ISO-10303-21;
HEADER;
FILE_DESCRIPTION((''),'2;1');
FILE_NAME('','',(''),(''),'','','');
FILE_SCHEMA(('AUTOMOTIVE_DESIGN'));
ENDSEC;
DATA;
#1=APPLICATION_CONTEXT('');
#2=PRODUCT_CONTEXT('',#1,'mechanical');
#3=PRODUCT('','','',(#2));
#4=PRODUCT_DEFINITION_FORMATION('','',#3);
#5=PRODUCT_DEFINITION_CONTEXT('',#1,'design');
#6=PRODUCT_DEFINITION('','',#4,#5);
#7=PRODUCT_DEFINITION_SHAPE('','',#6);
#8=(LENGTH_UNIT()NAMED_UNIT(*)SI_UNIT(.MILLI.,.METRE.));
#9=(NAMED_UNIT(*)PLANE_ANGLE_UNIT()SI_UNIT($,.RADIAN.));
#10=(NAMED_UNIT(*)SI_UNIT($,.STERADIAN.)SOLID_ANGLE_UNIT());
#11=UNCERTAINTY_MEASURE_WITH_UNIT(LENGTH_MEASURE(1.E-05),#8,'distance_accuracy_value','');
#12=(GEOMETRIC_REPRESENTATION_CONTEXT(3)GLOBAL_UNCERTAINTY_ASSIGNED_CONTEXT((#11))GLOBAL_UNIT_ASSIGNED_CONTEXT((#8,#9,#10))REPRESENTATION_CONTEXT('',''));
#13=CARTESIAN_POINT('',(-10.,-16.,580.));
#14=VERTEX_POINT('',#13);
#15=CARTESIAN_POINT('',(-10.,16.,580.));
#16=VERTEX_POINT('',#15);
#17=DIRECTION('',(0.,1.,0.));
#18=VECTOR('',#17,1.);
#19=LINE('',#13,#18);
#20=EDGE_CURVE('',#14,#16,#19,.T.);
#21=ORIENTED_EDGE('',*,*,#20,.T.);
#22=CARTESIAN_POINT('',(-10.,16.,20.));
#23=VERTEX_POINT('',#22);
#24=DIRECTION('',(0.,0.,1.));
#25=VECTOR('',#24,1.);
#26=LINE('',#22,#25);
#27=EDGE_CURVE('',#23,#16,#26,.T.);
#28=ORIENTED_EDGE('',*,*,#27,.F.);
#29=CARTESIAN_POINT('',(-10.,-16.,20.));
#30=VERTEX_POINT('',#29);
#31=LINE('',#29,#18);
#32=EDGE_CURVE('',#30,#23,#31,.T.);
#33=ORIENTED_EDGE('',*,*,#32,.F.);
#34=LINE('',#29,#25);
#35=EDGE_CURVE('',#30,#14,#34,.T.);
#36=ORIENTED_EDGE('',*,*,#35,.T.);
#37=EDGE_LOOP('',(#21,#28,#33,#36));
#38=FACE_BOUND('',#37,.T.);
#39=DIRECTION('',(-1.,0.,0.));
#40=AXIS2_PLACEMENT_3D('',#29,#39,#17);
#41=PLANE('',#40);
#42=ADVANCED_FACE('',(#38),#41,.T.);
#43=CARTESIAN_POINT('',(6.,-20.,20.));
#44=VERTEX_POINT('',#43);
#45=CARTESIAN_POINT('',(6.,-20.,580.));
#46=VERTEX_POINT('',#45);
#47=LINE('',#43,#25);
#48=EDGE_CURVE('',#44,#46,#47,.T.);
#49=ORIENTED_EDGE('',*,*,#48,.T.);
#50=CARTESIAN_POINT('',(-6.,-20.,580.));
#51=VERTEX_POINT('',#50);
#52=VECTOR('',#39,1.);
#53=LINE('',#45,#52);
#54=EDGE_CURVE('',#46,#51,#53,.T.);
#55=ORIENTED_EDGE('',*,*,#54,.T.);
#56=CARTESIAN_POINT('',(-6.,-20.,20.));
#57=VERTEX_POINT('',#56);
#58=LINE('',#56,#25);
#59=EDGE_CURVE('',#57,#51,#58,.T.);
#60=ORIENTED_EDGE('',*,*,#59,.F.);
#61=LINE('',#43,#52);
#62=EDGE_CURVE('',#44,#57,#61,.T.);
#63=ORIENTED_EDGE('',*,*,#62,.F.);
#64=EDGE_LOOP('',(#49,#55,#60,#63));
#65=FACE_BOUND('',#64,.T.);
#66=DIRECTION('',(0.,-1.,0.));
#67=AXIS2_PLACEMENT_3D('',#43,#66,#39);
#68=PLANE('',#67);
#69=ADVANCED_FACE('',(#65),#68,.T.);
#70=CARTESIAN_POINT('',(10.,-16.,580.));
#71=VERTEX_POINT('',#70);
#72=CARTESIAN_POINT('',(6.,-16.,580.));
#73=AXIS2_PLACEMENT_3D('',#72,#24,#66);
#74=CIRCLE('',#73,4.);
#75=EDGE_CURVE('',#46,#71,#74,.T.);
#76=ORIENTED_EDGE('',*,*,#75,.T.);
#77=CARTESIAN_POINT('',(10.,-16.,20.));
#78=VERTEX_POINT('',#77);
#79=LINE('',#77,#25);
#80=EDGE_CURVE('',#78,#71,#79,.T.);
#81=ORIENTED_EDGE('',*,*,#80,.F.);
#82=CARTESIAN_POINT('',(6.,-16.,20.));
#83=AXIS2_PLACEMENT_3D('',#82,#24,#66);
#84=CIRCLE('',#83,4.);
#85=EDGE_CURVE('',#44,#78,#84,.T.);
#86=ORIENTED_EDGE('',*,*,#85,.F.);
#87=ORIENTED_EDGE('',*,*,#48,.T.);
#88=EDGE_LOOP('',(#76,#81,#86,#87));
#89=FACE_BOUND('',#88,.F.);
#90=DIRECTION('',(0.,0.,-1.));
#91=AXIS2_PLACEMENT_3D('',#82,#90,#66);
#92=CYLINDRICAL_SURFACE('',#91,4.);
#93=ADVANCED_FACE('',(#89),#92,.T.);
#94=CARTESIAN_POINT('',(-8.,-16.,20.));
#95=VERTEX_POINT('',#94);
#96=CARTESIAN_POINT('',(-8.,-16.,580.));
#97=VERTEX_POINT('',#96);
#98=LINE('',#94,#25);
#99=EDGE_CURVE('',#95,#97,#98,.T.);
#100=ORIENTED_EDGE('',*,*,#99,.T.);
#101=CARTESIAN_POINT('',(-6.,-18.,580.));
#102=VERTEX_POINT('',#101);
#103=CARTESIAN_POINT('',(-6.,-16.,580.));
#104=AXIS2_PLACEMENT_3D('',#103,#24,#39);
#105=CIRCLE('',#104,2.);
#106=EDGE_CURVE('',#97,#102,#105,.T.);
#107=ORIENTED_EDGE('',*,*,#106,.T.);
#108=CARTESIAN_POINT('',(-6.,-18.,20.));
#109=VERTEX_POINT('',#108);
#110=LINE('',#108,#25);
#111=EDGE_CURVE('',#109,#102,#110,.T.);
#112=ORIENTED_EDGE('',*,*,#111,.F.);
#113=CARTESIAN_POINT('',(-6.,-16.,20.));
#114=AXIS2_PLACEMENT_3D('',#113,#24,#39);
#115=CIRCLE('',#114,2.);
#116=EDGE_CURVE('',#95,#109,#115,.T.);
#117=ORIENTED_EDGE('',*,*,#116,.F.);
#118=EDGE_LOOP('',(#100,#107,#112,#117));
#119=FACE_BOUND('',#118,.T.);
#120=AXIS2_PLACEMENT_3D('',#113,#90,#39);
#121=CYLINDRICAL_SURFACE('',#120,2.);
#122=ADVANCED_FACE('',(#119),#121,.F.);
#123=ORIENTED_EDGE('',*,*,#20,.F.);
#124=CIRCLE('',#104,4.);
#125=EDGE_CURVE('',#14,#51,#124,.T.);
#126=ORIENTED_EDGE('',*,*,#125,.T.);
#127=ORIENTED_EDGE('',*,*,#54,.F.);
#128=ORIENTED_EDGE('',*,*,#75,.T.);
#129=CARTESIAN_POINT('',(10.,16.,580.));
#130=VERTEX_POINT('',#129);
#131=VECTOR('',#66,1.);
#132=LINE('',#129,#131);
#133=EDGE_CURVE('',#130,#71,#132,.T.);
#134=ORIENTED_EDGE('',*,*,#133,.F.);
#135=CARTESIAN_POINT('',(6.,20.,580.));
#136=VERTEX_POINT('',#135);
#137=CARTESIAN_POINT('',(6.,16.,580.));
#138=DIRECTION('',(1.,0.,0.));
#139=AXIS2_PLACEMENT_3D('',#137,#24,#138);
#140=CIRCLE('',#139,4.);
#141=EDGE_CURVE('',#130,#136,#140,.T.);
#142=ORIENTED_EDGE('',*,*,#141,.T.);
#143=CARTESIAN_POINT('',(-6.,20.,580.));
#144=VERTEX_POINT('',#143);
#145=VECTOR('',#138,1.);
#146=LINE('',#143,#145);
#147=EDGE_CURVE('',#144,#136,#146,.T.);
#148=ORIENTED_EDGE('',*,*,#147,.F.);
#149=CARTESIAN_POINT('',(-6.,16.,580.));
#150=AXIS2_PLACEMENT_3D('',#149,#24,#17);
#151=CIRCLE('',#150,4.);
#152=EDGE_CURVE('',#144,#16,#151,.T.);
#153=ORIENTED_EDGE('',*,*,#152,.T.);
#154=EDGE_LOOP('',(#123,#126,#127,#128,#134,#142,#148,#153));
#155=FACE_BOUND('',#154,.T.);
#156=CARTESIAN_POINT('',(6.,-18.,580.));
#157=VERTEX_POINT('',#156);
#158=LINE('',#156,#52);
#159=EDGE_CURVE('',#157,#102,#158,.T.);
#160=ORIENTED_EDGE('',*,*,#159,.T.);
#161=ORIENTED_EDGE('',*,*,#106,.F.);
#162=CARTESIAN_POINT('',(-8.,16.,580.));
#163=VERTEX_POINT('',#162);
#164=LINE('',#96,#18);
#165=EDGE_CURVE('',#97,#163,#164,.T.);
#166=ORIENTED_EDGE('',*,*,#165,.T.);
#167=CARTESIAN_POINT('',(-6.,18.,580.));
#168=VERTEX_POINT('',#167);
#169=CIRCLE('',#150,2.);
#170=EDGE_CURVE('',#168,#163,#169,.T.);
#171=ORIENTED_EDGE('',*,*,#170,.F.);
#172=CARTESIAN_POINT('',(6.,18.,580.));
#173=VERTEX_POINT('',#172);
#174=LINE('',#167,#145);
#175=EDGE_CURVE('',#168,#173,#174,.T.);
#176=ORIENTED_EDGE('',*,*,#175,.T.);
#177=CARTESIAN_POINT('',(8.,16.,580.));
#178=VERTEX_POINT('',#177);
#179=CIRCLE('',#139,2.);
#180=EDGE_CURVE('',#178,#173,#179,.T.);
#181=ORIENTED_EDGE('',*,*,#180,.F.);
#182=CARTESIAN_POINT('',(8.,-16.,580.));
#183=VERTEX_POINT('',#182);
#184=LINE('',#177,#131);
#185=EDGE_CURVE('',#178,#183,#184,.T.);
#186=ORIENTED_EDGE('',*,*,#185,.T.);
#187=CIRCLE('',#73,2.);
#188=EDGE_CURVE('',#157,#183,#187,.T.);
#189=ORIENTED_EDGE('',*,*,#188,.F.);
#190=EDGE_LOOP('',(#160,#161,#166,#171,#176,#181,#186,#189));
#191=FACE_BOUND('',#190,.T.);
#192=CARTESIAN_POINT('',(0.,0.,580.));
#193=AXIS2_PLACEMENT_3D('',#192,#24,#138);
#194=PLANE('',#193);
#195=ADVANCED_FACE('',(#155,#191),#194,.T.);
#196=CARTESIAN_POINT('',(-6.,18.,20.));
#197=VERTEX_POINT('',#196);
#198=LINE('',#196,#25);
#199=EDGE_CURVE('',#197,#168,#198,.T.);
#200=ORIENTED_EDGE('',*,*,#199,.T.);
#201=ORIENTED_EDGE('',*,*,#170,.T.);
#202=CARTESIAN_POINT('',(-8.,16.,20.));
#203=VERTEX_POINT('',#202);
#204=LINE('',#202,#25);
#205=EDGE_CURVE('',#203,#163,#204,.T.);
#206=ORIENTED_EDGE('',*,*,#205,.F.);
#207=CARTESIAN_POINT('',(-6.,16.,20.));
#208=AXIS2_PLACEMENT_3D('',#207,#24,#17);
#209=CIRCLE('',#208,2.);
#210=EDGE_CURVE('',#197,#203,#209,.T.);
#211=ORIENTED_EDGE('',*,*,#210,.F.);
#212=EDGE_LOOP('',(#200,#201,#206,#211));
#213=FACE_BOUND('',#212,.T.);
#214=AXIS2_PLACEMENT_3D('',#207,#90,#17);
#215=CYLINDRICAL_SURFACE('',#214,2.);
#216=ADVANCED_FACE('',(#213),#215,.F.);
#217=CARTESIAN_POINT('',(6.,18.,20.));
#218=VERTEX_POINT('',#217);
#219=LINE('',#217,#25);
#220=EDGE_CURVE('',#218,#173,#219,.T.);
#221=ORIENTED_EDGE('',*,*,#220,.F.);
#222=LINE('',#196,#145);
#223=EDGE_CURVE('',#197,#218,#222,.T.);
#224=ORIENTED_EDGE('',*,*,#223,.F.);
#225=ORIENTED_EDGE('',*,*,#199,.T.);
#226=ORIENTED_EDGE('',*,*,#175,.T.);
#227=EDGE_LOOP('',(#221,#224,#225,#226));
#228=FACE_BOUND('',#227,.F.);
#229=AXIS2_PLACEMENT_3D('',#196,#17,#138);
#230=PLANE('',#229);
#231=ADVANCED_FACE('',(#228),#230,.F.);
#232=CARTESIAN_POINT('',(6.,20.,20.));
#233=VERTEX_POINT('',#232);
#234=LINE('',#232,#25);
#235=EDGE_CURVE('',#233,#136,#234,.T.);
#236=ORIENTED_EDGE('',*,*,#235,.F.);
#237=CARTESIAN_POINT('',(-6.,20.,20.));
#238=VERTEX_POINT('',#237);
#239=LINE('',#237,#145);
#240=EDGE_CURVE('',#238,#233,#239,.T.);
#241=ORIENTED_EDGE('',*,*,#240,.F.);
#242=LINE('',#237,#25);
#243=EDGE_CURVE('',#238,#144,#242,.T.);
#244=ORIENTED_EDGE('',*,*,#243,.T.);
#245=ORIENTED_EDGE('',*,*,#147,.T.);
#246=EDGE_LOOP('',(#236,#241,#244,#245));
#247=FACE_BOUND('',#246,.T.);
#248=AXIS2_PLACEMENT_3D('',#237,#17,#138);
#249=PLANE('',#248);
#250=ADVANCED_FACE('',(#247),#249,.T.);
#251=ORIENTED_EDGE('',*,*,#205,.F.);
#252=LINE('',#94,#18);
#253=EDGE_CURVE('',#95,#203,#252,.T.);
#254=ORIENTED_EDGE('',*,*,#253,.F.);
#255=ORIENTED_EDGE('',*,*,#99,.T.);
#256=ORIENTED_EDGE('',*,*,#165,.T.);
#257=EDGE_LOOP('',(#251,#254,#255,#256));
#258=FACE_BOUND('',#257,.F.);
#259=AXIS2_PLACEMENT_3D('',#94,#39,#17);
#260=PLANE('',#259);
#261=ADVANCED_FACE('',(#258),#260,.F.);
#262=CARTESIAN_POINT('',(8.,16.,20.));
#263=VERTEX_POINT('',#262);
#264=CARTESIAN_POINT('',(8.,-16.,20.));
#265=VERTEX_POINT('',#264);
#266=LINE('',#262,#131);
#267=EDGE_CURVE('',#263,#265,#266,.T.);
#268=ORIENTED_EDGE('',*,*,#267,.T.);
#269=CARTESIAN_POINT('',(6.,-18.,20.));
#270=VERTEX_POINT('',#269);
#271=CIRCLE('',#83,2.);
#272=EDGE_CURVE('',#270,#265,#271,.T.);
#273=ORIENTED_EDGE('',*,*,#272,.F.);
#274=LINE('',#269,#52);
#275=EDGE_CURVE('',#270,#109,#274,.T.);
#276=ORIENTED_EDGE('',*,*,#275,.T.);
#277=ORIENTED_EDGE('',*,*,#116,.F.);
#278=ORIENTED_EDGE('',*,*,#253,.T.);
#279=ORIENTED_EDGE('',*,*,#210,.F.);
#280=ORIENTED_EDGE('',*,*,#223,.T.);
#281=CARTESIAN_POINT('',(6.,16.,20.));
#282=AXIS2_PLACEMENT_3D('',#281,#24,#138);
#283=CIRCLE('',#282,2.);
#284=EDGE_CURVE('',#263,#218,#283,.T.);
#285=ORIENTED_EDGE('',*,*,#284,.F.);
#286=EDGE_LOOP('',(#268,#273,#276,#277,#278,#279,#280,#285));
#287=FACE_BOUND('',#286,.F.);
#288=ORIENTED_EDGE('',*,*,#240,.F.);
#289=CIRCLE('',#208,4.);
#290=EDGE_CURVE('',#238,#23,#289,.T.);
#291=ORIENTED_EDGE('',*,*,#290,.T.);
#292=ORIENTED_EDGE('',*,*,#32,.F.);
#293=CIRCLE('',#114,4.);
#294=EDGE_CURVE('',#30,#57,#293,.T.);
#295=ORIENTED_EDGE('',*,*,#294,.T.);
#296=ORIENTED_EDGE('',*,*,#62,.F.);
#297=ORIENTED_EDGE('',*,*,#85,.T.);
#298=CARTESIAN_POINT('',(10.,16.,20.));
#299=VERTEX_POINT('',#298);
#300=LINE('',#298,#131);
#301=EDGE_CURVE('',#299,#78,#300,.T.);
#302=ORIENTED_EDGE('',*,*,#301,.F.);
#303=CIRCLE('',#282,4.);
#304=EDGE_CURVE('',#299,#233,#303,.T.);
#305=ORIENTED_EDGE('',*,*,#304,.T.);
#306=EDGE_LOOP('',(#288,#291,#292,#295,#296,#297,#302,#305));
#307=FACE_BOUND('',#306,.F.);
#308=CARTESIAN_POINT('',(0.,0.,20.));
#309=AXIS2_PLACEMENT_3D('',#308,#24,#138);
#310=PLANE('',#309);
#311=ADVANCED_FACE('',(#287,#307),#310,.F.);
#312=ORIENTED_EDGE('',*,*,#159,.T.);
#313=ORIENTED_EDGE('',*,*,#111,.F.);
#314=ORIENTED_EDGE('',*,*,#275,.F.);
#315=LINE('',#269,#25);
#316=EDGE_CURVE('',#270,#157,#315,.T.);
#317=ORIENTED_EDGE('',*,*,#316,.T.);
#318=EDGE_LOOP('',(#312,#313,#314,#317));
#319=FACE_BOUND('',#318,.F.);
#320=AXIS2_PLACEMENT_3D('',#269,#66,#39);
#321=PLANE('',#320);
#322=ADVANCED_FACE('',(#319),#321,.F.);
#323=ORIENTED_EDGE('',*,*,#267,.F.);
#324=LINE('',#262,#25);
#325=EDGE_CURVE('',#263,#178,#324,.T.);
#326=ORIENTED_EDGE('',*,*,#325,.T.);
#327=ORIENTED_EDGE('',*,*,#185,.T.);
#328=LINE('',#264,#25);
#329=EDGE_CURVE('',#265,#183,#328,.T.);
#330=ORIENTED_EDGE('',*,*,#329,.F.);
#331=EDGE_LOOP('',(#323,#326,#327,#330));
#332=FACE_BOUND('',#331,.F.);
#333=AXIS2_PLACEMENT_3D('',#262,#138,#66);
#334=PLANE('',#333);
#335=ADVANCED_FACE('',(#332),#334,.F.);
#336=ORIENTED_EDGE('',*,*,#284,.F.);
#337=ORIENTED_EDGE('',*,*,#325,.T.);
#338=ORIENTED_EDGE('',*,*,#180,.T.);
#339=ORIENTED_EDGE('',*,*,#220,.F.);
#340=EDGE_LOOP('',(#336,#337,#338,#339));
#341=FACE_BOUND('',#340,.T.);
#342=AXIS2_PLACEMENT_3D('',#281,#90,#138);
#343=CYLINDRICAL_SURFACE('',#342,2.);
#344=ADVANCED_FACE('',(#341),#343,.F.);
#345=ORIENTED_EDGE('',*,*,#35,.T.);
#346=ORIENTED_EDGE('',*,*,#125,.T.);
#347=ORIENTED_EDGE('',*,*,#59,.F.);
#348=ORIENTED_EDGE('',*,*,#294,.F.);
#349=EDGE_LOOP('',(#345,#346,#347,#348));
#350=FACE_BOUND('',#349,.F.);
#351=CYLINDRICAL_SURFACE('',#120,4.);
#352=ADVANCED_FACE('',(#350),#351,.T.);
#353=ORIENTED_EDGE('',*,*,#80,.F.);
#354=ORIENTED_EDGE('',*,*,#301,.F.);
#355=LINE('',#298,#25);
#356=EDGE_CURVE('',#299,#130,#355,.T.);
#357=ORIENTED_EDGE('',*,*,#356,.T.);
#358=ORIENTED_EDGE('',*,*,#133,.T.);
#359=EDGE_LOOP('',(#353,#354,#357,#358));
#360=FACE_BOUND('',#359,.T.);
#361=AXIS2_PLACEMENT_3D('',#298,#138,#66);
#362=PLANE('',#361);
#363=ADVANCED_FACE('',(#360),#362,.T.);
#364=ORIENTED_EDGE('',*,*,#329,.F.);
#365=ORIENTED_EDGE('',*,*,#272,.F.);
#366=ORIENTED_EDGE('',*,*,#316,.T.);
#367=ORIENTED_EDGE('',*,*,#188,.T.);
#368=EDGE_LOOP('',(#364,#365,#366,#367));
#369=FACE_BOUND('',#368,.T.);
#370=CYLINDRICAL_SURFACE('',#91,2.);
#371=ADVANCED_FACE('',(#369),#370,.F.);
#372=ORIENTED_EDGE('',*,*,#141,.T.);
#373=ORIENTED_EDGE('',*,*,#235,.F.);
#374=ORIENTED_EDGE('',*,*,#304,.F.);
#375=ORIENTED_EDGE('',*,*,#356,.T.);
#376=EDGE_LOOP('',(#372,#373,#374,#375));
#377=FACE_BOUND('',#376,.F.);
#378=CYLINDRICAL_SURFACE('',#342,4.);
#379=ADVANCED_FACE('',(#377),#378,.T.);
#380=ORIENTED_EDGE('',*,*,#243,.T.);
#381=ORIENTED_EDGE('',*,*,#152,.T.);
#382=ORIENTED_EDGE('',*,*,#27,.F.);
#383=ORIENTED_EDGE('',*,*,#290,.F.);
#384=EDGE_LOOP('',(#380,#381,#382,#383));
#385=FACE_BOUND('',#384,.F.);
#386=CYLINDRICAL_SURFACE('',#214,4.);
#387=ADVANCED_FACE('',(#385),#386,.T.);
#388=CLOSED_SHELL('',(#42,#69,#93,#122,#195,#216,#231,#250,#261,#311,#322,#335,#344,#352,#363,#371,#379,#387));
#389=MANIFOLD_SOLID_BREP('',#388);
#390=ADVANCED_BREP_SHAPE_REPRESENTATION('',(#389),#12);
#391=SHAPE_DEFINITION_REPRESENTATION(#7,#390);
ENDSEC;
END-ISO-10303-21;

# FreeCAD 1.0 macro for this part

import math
import FreeCAD as App
import Part
import Sketcher
from FreeCAD import Vector

doc = App.newDocument("Part")
body = doc.addObject("PartDesign::Body", "Body")

# Sketch on XY plane
sketch1 = body.newObject("Sketcher::SketchObject", "Sketch")
sketch1.AttachmentSupport = (doc.getObject("XY_Plane"), [""])
sketch1.MapMode = "FlatFace"
sketch1.AttachmentOffset = App.Placement(Vector(0, 0, 20), App.Rotation())
sketch1.addGeometry(Part.LineSegment(Vector(-10, 16, 0), Vector(-10, -16, 0)), False)
sketch1.addGeometry(Part.ArcOfCircle(Part.Circle(Vector(-6, -16, 0), Vector(0, 0, 1), 4), math.radians(180), math.radians(270)), False)
sketch1.addGeometry(Part.LineSegment(Vector(-6, -20, 0), Vector(6, -20, 0)), False)
sketch1.addGeometry(Part.ArcOfCircle(Part.Circle(Vector(6, -16, 0), Vector(0, 0, 1), 4), math.radians(-90), math.radians(0)), False)
sketch1.addGeometry(Part.LineSegment(Vector(10, -16, 0), Vector(10, 16, 0)), False)
sketch1.addGeometry(Part.ArcOfCircle(Part.Circle(Vector(6, 16, 0), Vector(0, 0, 1), 4), math.radians(0), math.radians(90)), False)
sketch1.addGeometry(Part.LineSegment(Vector(6, 20, 0), Vector(-6, 20, 0)), False)
sketch1.addGeometry(Part.ArcOfCircle(Part.Circle(Vector(-6, 16, 0), Vector(0, 0, 1), 4), math.radians(90), math.radians(180)), False)
sketch1.addGeometry(Part.ArcOfCircle(Part.Circle(Vector(-6, 16, 0), Vector(0, 0, 1), 2), math.radians(90), math.radians(180)), False)
sketch1.addGeometry(Part.LineSegment(Vector(-6, 18, 0), Vector(6, 18, 0)), False)
sketch1.addGeometry(Part.ArcOfCircle(Part.Circle(Vector(6, 16, 0), Vector(0, 0, 1), 2), math.radians(0), math.radians(90)), False)
sketch1.addGeometry(Part.LineSegment(Vector(8, 16, 0), Vector(8, -16, 0)), False)
sketch1.addGeometry(Part.ArcOfCircle(Part.Circle(Vector(6, -16, 0), Vector(0, 0, 1), 2), math.radians(-90), math.radians(0)), False)
sketch1.addGeometry(Part.LineSegment(Vector(6, -18, 0), Vector(-6, -18, 0)), False)
sketch1.addGeometry(Part.ArcOfCircle(Part.Circle(Vector(-6, -16, 0), Vector(0, 0, 1), 2), math.radians(180), math.radians(270)), False)
sketch1.addGeometry(Part.LineSegment(Vector(-8, -16, 0), Vector(-8, 16, 0)), False)
sketch1.addConstraint(Sketcher.Constraint("Tangent", 0, 2, 1, 1))
sketch1.addConstraint(Sketcher.Constraint("Tangent", 1, 2, 2, 1))
sketch1.addConstraint(Sketcher.Constraint("Tangent", 2, 2, 3, 1))
sketch1.addConstraint(Sketcher.Constraint("Tangent", 3, 2, 4, 1))
sketch1.addConstraint(Sketcher.Constraint("Tangent", 4, 2, 5, 1))
sketch1.addConstraint(Sketcher.Constraint("Tangent", 5, 2, 6, 1))
sketch1.addConstraint(Sketcher.Constraint("Tangent", 6, 2, 7, 1))
sketch1.addConstraint(Sketcher.Constraint("Tangent", 7, 2, 0, 1))
sketch1.addConstraint(Sketcher.Constraint("Tangent", 8, 1, 9, 1))
sketch1.addConstraint(Sketcher.Constraint("Tangent", 9, 2, 10, 2))
sketch1.addConstraint(Sketcher.Constraint("Tangent", 10, 1, 11, 1))
sketch1.addConstraint(Sketcher.Constraint("Tangent", 11, 2, 12, 2))
sketch1.addConstraint(Sketcher.Constraint("Tangent", 12, 1, 13, 1))
sketch1.addConstraint(Sketcher.Constraint("Tangent", 13, 2, 14, 2))
sketch1.addConstraint(Sketcher.Constraint("Tangent", 14, 1, 15, 1))
sketch1.addConstraint(Sketcher.Constraint("Tangent", 15, 2, 8, 2))
sketch1.addConstraint(Sketcher.Constraint("Vertical", 0))
sketch1.addConstraint(Sketcher.Constraint("Horizontal", 2))
sketch1.addConstraint(Sketcher.Constraint("Vertical", 4))
sketch1.addConstraint(Sketcher.Constraint("Horizontal", 6))
sketch1.addConstraint(Sketcher.Constraint("Horizontal", 9))
sketch1.addConstraint(Sketcher.Constraint("Vertical", 11))
sketch1.addConstraint(Sketcher.Constraint("Horizontal", 13))
sketch1.addConstraint(Sketcher.Constraint("Vertical", 15))
sketch1.addConstraint(Sketcher.Constraint("Coincident", 8, 3, 7, 3))
sketch1.addConstraint(Sketcher.Constraint("Coincident", 10, 3, 5, 3))
sketch1.addConstraint(Sketcher.Constraint("Coincident", 12, 3, 3, 3))
sketch1.addConstraint(Sketcher.Constraint("Equal", 1, 3))
sketch1.addConstraint(Sketcher.Constraint("Equal", 3, 5))
sketch1.addConstraint(Sketcher.Constraint("Equal", 5, 7))
sketch1.addConstraint(Sketcher.Constraint("Equal", 12, 14))
sketch1.addConstraint(Sketcher.Constraint("Symmetric", 1, 3, 5, 3, -1, 1))
sketch1.addConstraint(Sketcher.Constraint("Radius", 1, 4.0))
sketch1.addConstraint(Sketcher.Constraint("Radius", 8, 2.0))
sketch1.addConstraint(Sketcher.Constraint("DistanceX", 0, 2, -1, 1, 10.0))
sketch1.addConstraint(Sketcher.Constraint("DistanceY", 1, 2, -1, 1, 20.0))
pad1 = body.newObject("PartDesign::Pad", "Pad")
pad1.Profile = sketch1
pad1.Length = 560

doc.recompute()
